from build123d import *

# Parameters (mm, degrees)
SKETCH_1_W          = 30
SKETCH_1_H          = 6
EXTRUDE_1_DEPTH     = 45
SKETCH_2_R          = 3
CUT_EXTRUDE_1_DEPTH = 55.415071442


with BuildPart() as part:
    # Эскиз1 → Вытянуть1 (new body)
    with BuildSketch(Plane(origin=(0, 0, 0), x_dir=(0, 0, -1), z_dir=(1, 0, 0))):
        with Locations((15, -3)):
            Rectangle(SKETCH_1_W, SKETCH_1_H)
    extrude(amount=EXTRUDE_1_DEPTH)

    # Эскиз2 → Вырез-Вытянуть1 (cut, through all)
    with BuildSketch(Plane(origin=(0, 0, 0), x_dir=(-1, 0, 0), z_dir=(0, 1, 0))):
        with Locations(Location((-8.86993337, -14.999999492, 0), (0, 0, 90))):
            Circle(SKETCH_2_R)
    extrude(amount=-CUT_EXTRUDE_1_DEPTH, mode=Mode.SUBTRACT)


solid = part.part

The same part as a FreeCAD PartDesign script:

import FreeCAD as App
import Part
import Sketcher

doc = App.newDocument("Part")
body = doc.addObject("PartDesign::Body", "Body")

# Sketch on YZ plane
sketch1 = body.newObject("Sketcher::SketchObject", "Sketch")
sketch1.AttachmentSupport = (doc.getObject("YZ_Plane"), [""])
sketch1.MapMode = "FlatFace"
sketch1.addGeometry(Part.LineSegment(App.Vector(0, 0, 0), App.Vector(-6, 0, 0)), False)
sketch1.addGeometry(Part.LineSegment(App.Vector(-6, 0, 0), App.Vector(-6, -30, 0)), False)
sketch1.addGeometry(Part.LineSegment(App.Vector(-6, -30, 0), App.Vector(0, -30, 0)), False)
sketch1.addGeometry(Part.LineSegment(App.Vector(0, -30, 0), App.Vector(0, 0, 0)), False)
sketch1.addConstraint(Sketcher.Constraint("Coincident", 0, 2, 1, 1))
sketch1.addConstraint(Sketcher.Constraint("Coincident", 1, 2, 2, 1))
sketch1.addConstraint(Sketcher.Constraint("Coincident", 2, 2, 3, 1))
sketch1.addConstraint(Sketcher.Constraint("Coincident", 3, 2, 0, 1))
sketch1.addConstraint(Sketcher.Constraint("Horizontal", 0))
sketch1.addConstraint(Sketcher.Constraint("Vertical", 1))
sketch1.addConstraint(Sketcher.Constraint("Horizontal", 2))
sketch1.addConstraint(Sketcher.Constraint("Vertical", 3))
sketch1.addConstraint(Sketcher.Constraint("Coincident", 3, 2, -1, 1))
sketch1.addConstraint(Sketcher.Constraint("DistanceX", 0, 2, 0, 1, 6.0))
sketch1.addConstraint(Sketcher.Constraint("DistanceY", 1, 2, 1, 1, 30.0))
pad1 = body.newObject("PartDesign::Pad", "Pad")
pad1.Profile = sketch1
pad1.Length = 45

# Sketch on XZ plane
sketch2 = body.newObject("Sketcher::SketchObject", "Sketch001")
sketch2.AttachmentSupport = (doc.getObject("XZ_Plane"), [""])
sketch2.MapMode = "FlatFace"
sketch2.addGeometry(Part.Circle(App.Vector(8.9, -15, 0), App.Vector(0, 0, 1), 3), False)
sketch2.addConstraint(Sketcher.Constraint("Diameter", 0, 6.0))
sketch2.addConstraint(Sketcher.Constraint("DistanceY", 0, 3, -1, 1, 14.999999))
sketch2.addConstraint(Sketcher.Constraint("DistanceX", -1, 1, 0, 3, 8.869933))
pocket1 = body.newObject("PartDesign::Pocket", "Pocket")
pocket1.Profile = sketch2
pocket1.Type = "ThroughAll"
pocket1.Reversed = True

doc.recompute()
